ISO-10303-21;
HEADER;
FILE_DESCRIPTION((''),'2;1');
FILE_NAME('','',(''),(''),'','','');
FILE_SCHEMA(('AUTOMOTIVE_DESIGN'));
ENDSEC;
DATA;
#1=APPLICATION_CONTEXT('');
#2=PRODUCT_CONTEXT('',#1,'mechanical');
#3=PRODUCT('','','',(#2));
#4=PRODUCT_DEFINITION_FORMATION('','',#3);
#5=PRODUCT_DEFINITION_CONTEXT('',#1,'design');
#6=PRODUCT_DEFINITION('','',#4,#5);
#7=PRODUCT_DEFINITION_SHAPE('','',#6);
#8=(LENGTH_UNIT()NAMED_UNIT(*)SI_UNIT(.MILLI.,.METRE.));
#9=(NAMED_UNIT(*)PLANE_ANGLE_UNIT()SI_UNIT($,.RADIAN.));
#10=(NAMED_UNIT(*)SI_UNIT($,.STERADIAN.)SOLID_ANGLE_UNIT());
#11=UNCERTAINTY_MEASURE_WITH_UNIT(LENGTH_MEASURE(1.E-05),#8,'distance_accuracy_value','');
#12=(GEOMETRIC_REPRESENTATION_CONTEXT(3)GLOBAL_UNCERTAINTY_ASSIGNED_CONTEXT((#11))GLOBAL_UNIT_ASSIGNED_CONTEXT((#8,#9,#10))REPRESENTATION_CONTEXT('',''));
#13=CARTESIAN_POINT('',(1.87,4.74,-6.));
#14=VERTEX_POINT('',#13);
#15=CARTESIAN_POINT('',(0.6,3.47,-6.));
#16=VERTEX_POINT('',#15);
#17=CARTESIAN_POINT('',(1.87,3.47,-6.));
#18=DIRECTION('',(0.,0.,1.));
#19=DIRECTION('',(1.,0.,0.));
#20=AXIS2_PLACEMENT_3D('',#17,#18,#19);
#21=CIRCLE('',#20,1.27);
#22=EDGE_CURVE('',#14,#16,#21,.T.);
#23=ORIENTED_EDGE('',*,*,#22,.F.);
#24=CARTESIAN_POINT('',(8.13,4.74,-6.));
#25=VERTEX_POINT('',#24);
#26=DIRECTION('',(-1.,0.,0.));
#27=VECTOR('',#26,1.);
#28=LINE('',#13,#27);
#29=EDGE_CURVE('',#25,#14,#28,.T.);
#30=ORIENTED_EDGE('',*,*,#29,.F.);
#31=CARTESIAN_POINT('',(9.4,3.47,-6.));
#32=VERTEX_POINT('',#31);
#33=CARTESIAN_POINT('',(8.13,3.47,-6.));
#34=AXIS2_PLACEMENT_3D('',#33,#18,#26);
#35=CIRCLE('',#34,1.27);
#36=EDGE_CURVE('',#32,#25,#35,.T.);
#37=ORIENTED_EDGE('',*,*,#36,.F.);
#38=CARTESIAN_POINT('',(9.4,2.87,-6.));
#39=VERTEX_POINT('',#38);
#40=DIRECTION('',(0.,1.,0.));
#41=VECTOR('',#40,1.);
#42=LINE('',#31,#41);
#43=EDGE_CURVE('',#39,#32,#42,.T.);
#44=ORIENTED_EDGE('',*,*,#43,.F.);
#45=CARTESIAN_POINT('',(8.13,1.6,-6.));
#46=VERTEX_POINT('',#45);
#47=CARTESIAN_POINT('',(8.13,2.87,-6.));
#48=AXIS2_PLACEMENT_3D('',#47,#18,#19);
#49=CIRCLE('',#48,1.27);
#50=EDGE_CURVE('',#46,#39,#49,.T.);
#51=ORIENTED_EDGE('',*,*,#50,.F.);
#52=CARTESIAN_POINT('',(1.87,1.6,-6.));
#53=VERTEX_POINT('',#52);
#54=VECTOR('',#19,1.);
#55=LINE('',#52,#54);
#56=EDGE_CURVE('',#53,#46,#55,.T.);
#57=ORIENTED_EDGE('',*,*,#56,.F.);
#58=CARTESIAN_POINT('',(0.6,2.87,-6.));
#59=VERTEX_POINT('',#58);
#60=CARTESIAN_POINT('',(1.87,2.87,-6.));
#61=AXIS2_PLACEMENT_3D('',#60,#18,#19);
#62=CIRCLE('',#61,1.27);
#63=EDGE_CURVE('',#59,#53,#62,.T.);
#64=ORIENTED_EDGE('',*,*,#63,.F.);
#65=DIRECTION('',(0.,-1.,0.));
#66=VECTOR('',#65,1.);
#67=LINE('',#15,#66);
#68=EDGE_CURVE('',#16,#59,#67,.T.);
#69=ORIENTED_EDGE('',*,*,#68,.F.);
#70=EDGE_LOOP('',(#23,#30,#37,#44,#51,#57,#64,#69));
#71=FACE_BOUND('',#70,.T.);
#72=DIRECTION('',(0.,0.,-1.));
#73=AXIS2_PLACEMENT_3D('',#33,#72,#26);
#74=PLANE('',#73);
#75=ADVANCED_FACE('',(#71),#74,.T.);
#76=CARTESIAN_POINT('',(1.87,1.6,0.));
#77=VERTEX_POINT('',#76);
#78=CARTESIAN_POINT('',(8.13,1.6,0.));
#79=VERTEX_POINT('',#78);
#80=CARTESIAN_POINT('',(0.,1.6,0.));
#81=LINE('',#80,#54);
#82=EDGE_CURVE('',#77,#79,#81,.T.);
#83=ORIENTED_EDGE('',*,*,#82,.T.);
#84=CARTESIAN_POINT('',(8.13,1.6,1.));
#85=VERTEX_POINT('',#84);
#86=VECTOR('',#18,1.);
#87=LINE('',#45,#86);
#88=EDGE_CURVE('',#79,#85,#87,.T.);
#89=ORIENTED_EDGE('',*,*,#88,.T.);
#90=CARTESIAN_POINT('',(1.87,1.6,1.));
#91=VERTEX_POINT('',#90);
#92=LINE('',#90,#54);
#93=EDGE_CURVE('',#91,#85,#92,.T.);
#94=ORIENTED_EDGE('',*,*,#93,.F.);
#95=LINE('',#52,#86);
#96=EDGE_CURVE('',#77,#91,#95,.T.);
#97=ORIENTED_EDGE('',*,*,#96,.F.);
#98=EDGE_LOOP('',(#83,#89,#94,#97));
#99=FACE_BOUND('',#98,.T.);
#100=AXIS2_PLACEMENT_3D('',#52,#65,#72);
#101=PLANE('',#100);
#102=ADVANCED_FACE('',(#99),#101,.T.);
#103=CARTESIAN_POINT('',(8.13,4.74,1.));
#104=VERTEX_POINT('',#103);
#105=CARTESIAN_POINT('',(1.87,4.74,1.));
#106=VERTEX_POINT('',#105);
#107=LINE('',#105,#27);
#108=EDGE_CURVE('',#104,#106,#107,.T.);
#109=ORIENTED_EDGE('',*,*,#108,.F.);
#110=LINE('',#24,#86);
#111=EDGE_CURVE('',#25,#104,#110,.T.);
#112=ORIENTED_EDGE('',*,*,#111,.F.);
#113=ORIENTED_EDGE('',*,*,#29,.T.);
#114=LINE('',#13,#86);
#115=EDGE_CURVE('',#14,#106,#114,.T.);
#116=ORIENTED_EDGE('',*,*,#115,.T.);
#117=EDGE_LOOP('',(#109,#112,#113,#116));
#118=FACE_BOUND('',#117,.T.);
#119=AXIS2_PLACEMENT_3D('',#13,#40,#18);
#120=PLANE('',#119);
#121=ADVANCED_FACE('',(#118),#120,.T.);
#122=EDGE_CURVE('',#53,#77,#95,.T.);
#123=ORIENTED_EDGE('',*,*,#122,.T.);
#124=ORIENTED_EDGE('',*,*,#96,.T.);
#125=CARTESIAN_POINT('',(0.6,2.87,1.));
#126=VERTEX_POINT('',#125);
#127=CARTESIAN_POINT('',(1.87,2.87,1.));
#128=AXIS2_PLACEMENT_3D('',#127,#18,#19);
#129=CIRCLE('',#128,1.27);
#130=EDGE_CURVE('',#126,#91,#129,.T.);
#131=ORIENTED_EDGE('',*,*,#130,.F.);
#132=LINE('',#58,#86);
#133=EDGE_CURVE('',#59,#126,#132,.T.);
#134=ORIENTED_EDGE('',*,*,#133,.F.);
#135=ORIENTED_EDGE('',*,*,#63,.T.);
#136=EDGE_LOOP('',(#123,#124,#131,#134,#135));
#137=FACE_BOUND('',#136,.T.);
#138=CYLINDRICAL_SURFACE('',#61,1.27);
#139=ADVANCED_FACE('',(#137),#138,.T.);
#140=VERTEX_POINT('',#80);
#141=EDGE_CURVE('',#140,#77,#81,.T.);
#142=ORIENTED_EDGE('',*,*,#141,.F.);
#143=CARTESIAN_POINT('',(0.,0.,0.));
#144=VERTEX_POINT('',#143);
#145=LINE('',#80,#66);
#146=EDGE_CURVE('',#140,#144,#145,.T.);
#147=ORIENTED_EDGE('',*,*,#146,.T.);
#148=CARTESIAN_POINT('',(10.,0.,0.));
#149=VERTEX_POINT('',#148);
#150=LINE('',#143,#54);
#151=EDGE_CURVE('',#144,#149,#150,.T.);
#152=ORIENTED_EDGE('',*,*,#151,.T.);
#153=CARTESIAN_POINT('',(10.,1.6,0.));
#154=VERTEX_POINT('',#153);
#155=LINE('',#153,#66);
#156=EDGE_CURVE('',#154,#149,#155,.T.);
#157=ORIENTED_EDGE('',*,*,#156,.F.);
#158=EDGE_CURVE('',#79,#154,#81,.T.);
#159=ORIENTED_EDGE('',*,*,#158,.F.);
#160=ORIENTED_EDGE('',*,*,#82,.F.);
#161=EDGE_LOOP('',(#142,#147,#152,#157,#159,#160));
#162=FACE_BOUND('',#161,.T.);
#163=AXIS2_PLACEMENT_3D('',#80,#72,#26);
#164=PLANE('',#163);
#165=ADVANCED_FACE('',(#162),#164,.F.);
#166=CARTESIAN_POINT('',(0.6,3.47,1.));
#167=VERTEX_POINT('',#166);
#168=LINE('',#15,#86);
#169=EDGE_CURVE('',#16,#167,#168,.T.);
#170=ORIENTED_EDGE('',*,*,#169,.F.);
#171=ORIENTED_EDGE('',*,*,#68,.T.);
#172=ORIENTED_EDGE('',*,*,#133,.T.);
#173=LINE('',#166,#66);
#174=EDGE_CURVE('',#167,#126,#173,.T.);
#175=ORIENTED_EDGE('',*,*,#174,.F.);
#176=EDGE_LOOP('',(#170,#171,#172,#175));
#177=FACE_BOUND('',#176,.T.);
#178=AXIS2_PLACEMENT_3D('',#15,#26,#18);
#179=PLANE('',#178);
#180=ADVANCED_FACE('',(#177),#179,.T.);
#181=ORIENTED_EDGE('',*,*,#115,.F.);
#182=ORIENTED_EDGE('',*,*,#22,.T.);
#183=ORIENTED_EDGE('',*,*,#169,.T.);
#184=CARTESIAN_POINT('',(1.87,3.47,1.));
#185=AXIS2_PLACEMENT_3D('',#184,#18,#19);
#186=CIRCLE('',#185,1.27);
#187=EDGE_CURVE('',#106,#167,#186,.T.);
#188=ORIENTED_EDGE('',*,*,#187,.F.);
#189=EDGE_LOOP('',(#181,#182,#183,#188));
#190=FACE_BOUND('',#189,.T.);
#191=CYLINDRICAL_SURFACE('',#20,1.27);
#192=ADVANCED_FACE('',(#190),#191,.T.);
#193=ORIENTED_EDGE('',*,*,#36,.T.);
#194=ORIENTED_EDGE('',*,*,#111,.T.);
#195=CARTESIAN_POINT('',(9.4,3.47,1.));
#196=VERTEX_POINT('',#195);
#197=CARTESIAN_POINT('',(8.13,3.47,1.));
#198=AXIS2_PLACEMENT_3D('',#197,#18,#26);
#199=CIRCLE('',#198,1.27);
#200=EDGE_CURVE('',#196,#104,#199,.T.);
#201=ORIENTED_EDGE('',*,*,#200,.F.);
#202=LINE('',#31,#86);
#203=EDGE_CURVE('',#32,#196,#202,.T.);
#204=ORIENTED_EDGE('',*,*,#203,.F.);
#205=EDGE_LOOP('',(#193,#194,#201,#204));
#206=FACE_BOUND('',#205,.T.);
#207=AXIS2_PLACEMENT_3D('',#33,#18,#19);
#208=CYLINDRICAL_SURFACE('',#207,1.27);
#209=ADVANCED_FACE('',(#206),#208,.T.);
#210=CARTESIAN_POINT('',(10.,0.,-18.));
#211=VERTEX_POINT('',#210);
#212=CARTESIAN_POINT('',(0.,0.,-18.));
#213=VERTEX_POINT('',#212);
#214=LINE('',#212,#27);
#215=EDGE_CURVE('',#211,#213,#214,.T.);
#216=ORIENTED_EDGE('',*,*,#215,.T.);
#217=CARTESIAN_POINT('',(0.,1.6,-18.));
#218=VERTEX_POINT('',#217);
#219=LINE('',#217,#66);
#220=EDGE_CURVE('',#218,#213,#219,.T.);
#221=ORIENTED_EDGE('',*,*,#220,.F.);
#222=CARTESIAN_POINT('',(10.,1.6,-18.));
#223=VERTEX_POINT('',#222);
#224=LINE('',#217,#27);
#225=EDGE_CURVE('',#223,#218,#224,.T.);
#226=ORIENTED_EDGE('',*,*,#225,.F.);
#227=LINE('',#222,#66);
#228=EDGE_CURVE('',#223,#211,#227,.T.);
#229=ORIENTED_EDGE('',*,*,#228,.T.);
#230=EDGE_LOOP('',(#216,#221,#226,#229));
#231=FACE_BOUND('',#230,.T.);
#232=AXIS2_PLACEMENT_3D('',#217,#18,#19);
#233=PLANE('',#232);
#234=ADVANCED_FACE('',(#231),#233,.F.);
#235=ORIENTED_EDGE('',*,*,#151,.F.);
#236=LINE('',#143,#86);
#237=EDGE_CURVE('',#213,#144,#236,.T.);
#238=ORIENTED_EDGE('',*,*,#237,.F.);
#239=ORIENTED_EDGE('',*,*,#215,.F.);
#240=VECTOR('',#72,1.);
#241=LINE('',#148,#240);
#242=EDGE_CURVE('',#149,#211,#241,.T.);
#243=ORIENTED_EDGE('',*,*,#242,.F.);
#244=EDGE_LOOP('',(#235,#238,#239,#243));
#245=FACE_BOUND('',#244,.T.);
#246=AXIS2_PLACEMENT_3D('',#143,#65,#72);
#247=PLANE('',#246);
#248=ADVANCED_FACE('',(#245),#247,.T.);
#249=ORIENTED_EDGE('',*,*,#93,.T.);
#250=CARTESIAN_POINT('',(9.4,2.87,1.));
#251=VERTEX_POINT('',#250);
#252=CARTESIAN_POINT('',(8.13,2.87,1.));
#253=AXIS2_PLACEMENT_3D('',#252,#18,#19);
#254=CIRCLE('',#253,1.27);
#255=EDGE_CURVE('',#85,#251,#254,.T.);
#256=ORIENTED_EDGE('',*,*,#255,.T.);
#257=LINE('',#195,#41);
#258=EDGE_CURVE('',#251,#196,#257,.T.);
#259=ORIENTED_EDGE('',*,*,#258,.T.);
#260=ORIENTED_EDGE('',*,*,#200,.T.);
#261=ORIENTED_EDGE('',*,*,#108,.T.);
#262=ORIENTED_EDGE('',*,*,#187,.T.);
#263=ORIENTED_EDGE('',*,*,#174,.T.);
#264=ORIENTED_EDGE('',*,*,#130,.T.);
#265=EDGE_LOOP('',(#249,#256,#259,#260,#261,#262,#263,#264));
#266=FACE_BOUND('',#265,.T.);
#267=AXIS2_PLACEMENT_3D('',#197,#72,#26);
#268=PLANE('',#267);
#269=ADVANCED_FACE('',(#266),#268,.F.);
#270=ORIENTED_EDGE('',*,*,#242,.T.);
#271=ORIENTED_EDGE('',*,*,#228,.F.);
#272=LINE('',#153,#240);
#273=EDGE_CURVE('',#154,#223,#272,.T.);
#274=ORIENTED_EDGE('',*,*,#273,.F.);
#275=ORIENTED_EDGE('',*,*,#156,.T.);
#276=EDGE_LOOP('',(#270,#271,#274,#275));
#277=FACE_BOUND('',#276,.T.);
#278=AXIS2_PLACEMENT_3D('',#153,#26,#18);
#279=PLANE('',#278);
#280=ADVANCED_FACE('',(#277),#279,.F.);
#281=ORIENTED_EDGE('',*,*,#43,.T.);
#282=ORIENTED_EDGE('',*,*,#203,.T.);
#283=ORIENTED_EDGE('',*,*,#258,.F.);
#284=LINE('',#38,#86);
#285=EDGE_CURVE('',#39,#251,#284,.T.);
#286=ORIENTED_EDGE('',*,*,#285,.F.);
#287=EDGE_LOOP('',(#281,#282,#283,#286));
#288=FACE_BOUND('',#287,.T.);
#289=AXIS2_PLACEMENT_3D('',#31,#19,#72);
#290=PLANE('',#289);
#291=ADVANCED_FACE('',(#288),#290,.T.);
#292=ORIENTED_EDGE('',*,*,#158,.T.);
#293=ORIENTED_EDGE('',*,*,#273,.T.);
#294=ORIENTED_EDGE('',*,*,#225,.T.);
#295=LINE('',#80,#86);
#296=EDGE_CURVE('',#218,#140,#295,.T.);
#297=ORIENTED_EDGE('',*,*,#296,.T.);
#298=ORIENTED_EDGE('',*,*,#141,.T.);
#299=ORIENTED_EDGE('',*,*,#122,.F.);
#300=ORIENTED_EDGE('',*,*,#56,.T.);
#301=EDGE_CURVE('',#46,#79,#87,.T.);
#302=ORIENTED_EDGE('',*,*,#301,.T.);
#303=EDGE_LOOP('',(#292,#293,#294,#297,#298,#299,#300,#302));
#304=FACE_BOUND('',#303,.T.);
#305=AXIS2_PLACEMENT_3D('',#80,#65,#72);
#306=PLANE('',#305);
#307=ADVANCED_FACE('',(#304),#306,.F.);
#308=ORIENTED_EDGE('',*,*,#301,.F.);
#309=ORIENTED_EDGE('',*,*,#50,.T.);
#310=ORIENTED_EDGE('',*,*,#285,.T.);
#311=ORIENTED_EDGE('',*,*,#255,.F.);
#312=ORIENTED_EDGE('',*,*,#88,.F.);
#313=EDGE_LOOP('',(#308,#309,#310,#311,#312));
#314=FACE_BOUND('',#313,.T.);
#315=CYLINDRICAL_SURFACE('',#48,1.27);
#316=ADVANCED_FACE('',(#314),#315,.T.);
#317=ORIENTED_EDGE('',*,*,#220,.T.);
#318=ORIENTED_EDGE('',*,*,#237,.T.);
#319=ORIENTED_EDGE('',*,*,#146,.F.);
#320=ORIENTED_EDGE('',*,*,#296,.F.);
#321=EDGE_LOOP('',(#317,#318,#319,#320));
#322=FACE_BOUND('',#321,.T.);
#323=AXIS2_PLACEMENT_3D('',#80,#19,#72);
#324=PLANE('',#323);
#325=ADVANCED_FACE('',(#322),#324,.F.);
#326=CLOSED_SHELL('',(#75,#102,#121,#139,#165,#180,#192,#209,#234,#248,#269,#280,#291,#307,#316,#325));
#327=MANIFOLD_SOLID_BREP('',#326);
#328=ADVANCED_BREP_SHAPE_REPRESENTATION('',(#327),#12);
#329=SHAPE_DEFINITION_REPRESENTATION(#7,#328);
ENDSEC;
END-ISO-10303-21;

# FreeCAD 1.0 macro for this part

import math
import FreeCAD as App
import Part
import Sketcher
Q = App.Units.Quantity


def add_polygon(sketch, points):
    """Adds a closed chain of lines whose ends are joined by coincident constraints."""
    first, n = sketch.GeometryCount, len(points)
    for a, b in zip(points, points[1:] + points[:1]):
        sketch.addGeometry(Part.LineSegment(App.Vector(*a, 0), App.Vector(*b, 0)), False)
    for i in range(n):
        sketch.addConstraint(Sketcher.Constraint("Coincident", first + i, 2, first + (i + 1) % n, 1))

doc = App.newDocument("Part")
params = doc.addObject("Spreadsheet::Sheet", "Params")
for row, (alias, value) in enumerate([
    ("sketch1_width", "10 mm"),
    ("sketch1_height", "18 mm"),
    ("pad1_length", "1.6 mm"),
    ("sketch2_radius", "1.27 mm"),
    ("sketch2_height", "0.6 mm"),
    ("sketch2_width", "6.26 mm"),
    ("pad2_length", "7 mm"),
], start=1):
    params.set(f"A{row}", alias)
    params.set(f"B{row}", "=" + value)
    params.setAlias(f"B{row}", alias)

body = doc.addObject("PartDesign::Body", "Body")

# Sketch on XZ plane
sketch1 = body.newObject("Sketcher::SketchObject", "Sketch")
sketch1.AttachmentSupport = (doc.getObject("XZ_Plane"), [""])
sketch1.MapMode = "FlatFace"
add_polygon(sketch1, [(0, -18), (0, 0), (10, 0), (10, -18)])  # lines 0-3
sketch1.addConstraint(Sketcher.Constraint("Vertical", 0))
sketch1.addConstraint(Sketcher.Constraint("Horizontal", 1))
sketch1.addConstraint(Sketcher.Constraint("Vertical", 2))
sketch1.addConstraint(Sketcher.Constraint("Horizontal", 3))
sketch1.addConstraint(Sketcher.Constraint("Coincident", 0, 2, -1, 1))
sketch1.addConstraint(Sketcher.Constraint("DistanceX", 1, 1, 1, 2, Q("10 mm")))
sketch1.addConstraint(Sketcher.Constraint("DistanceY", 0, 1, 0, 2, Q("18 mm")))
sketch1.setExpression("Constraints[9]", "Params.sketch1_width")
sketch1.setExpression("Constraints[10]", "Params.sketch1_height")
pad1 = body.newObject("PartDesign::Pad", "Pad")
pad1.Profile = sketch1
pad1.setExpression("Length", "Params.pad1_length")
pad1.Reversed = True

# Sketch on XY plane
sketch2 = body.newObject("Sketcher::SketchObject", "Sketch001")
sketch2.AttachmentSupport = (doc.getObject("XY_Plane"), [""])
sketch2.MapMode = "FlatFace"
sketch2.AttachmentOffset = App.Placement(App.Vector(0, 0, 1), App.Rotation())
sketch2.addGeometry(Part.LineSegment(App.Vector(8.1, 4.7, 0), App.Vector(1.9, 4.7, 0)), False)
sketch2.addGeometry(Part.ArcOfCircle(Part.Circle(App.Vector(1.9, 3.5, 0), App.Vector(0, 0, 1), 1.3), math.radians(90), math.radians(180)), False)
sketch2.addGeometry(Part.LineSegment(App.Vector(0.6, 3.5, 0), App.Vector(0.6, 2.9, 0)), False)
sketch2.addGeometry(Part.ArcOfCircle(Part.Circle(App.Vector(1.9, 2.9, 0), App.Vector(0, 0, 1), 1.3), math.radians(180), math.radians(270)), False)
sketch2.addGeometry(Part.LineSegment(App.Vector(1.9, 1.6, 0), App.Vector(8.1, 1.6, 0)), False)
sketch2.addGeometry(Part.ArcOfCircle(Part.Circle(App.Vector(8.1, 2.9, 0), App.Vector(0, 0, 1), 1.3), math.radians(-90), math.radians(0)), False)
sketch2.addGeometry(Part.LineSegment(App.Vector(9.4, 2.9, 0), App.Vector(9.4, 3.5, 0)), False)
sketch2.addGeometry(Part.ArcOfCircle(Part.Circle(App.Vector(8.1, 3.5, 0), App.Vector(0, 0, 1), 1.3), math.radians(0), math.radians(90)), False)
sketch2.addConstraint(Sketcher.Constraint("Tangent", 0, 2, 1, 1))
sketch2.addConstraint(Sketcher.Constraint("Tangent", 1, 2, 2, 1))
sketch2.addConstraint(Sketcher.Constraint("Tangent", 2, 2, 3, 1))
sketch2.addConstraint(Sketcher.Constraint("Tangent", 3, 2, 4, 1))
sketch2.addConstraint(Sketcher.Constraint("Tangent", 4, 2, 5, 1))
sketch2.addConstraint(Sketcher.Constraint("Tangent", 5, 2, 6, 1))
sketch2.addConstraint(Sketcher.Constraint("Tangent", 6, 2, 7, 1))
sketch2.addConstraint(Sketcher.Constraint("Tangent", 7, 2, 0, 1))
sketch2.addConstraint(Sketcher.Constraint("Horizontal", 0))
sketch2.addConstraint(Sketcher.Constraint("Vertical", 2))
sketch2.addConstraint(Sketcher.Constraint("Horizontal", 4))
sketch2.addConstraint(Sketcher.Constraint("Vertical", 6))
sketch2.addConstraint(Sketcher.Constraint("Equal", 1, 3))
sketch2.addConstraint(Sketcher.Constraint("Equal", 3, 5))
sketch2.addConstraint(Sketcher.Constraint("Equal", 5, 7))
sketch2.addConstraint(Sketcher.Constraint("Radius", 1, Q("1.27 mm")))
sketch2.addConstraint(Sketcher.Constraint("DistanceY", 2, 2, 2, 1, Q("0.6 mm")))
sketch2.addConstraint(Sketcher.Constraint("DistanceX", 0, 2, 0, 1, Q("6.26 mm")))
sketch2.addConstraint(Sketcher.Constraint("DistanceX", -1, 1, 1, 2, Q("0.6 mm")))
sketch2.addConstraint(Sketcher.Constraint("DistanceY", -1, 1, 3, 2, Q("1.6 mm")))
sketch2.setExpression("Constraints[15]", "Params.sketch2_radius")
sketch2.setExpression("Constraints[16]", "Params.sketch2_height")
sketch2.setExpression("Constraints[17]", "Params.sketch2_width")
pad2 = body.newObject("PartDesign::Pad", "Pad001")
pad2.Profile = sketch2
pad2.setExpression("Length", "Params.pad2_length")
pad2.Reversed = True

doc.recompute()
